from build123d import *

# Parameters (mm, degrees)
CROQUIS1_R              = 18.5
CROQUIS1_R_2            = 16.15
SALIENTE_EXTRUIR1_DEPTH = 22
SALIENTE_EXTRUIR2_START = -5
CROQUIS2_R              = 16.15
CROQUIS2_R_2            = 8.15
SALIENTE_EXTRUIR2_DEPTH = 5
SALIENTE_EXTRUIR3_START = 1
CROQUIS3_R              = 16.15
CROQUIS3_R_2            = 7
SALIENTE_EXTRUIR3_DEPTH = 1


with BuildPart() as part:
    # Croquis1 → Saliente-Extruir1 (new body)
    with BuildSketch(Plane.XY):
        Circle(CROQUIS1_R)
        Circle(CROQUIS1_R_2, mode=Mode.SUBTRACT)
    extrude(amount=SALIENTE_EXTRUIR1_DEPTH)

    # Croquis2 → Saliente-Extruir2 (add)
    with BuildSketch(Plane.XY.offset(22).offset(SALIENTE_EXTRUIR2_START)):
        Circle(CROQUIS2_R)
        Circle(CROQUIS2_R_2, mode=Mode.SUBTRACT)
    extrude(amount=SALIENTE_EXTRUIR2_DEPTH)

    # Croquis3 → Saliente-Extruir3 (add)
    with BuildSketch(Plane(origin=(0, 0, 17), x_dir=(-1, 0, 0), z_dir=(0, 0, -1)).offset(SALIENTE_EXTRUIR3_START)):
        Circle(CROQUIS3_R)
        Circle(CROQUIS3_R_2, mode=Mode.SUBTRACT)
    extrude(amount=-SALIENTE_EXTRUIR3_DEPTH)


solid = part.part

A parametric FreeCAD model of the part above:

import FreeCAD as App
import Part
import Sketcher
Q = App.Units.Quantity

doc = App.newDocument("Part")
params = doc.addObject("Spreadsheet::Sheet", "Params")
for row, (alias, value) in enumerate([
    ("sketch1_diameter", "37 mm"),
    ("sketch1_diameter2", "32.3 mm"),
    ("pad1_length", "22 mm"),
    ("sketch2_diameter", "32.3 mm"),
    ("sketch2_diameter2", "16.3 mm"),
    ("pad2_length", "5 mm"),
    ("sketch3_diameter", "14 mm"),
    ("sketch3_diameter2", "32.3 mm"),
    ("pad3_length", "1 mm"),
], start=1):
    params.set(f"A{row}", alias)
    params.set(f"B{row}", "=" + value)
    params.setAlias(f"B{row}", alias)

body = doc.addObject("PartDesign::Body", "Body")

sketch1 = body.newObject("Sketcher::SketchObject", "Sketch")
sketch1.AttachmentSupport = (doc.getObject("XY_Plane"), [""])
sketch1.MapMode = "FlatFace"
sketch1.addGeometry(Part.Circle(App.Vector(0, 0, 0), App.Vector(0, 0, 1), 18), False)
sketch1.addGeometry(Part.Circle(App.Vector(0, 0, 0), App.Vector(0, 0, 1), 16), False)
sketch1.addConstraint(Sketcher.Constraint("Coincident", 0, 3, -1, 1))
sketch1.addConstraint(Sketcher.Constraint("Coincident", 1, 3, -1, 1))
sketch1.addConstraint(Sketcher.Constraint("Diameter", 0, Q("37 mm")))
sketch1.addConstraint(Sketcher.Constraint("Diameter", 1, Q("32.3 mm")))
sketch1.setExpression("Constraints[2]", "Params.sketch1_diameter")
sketch1.setExpression("Constraints[3]", "Params.sketch1_diameter2")
pad1 = body.newObject("PartDesign::Pad", "Pad")
pad1.Profile = sketch1
pad1.setExpression("Length", "Params.pad1_length")

sketch2 = body.newObject("Sketcher::SketchObject", "Sketch001")
sketch2.AttachmentSupport = (doc.getObject("XY_Plane"), [""])
sketch2.MapMode = "FlatFace"
sketch2.AttachmentOffset = App.Placement(App.Vector(0, 0, 17), App.Rotation())
sketch2.addGeometry(Part.Circle(App.Vector(0, 0, 0), App.Vector(0, 0, 1), 16), False)
sketch2.addGeometry(Part.Circle(App.Vector(0, 0, 0), App.Vector(0, 0, 1), 8), False)
sketch2.addConstraint(Sketcher.Constraint("Coincident", 0, 3, -1, 1))
sketch2.addConstraint(Sketcher.Constraint("Coincident", 1, 3, -1, 1))
sketch2.addConstraint(Sketcher.Constraint("Diameter", 0, Q("32.3 mm")))
sketch2.addConstraint(Sketcher.Constraint("Diameter", 1, Q("16.3 mm")))
sketch2.setExpression("Constraints[2]", "Params.sketch2_diameter")
sketch2.setExpression("Constraints[3]", "Params.sketch2_diameter2")
pad2 = body.newObject("PartDesign::Pad", "Pad001")
pad2.Profile = sketch2
pad2.setExpression("Length", "Params.pad2_length")

sketch3 = body.newObject("Sketcher::SketchObject", "Sketch002")
sketch3.AttachmentSupport = (doc.getObject("XY_Plane"), [""])
sketch3.MapMode = "FlatFace"
sketch3.AttachmentOffset = App.Placement(App.Vector(0, 0, 16), App.Rotation())
sketch3.addGeometry(Part.Circle(App.Vector(0, 0, 0), App.Vector(0, 0, 1), 16), False)
sketch3.addGeometry(Part.Circle(App.Vector(0, 0, 0), App.Vector(0, 0, 1), 7), False)
sketch3.addConstraint(Sketcher.Constraint("Coincident", 0, 3, -1, 1))
sketch3.addConstraint(Sketcher.Constraint("Coincident", 1, 3, -1, 1))
sketch3.addConstraint(Sketcher.Constraint("Diameter", 1, Q("14 mm")))
sketch3.addConstraint(Sketcher.Constraint("Diameter", 0, Q("32.3 mm")))
sketch3.setExpression("Constraints[2]", "Params.sketch3_diameter")
sketch3.setExpression("Constraints[3]", "Params.sketch3_diameter2")
pad3 = body.newObject("PartDesign::Pad", "Pad002")
pad3.Profile = sketch3
pad3.setExpression("Length", "Params.pad3_length")

doc.recompute()
